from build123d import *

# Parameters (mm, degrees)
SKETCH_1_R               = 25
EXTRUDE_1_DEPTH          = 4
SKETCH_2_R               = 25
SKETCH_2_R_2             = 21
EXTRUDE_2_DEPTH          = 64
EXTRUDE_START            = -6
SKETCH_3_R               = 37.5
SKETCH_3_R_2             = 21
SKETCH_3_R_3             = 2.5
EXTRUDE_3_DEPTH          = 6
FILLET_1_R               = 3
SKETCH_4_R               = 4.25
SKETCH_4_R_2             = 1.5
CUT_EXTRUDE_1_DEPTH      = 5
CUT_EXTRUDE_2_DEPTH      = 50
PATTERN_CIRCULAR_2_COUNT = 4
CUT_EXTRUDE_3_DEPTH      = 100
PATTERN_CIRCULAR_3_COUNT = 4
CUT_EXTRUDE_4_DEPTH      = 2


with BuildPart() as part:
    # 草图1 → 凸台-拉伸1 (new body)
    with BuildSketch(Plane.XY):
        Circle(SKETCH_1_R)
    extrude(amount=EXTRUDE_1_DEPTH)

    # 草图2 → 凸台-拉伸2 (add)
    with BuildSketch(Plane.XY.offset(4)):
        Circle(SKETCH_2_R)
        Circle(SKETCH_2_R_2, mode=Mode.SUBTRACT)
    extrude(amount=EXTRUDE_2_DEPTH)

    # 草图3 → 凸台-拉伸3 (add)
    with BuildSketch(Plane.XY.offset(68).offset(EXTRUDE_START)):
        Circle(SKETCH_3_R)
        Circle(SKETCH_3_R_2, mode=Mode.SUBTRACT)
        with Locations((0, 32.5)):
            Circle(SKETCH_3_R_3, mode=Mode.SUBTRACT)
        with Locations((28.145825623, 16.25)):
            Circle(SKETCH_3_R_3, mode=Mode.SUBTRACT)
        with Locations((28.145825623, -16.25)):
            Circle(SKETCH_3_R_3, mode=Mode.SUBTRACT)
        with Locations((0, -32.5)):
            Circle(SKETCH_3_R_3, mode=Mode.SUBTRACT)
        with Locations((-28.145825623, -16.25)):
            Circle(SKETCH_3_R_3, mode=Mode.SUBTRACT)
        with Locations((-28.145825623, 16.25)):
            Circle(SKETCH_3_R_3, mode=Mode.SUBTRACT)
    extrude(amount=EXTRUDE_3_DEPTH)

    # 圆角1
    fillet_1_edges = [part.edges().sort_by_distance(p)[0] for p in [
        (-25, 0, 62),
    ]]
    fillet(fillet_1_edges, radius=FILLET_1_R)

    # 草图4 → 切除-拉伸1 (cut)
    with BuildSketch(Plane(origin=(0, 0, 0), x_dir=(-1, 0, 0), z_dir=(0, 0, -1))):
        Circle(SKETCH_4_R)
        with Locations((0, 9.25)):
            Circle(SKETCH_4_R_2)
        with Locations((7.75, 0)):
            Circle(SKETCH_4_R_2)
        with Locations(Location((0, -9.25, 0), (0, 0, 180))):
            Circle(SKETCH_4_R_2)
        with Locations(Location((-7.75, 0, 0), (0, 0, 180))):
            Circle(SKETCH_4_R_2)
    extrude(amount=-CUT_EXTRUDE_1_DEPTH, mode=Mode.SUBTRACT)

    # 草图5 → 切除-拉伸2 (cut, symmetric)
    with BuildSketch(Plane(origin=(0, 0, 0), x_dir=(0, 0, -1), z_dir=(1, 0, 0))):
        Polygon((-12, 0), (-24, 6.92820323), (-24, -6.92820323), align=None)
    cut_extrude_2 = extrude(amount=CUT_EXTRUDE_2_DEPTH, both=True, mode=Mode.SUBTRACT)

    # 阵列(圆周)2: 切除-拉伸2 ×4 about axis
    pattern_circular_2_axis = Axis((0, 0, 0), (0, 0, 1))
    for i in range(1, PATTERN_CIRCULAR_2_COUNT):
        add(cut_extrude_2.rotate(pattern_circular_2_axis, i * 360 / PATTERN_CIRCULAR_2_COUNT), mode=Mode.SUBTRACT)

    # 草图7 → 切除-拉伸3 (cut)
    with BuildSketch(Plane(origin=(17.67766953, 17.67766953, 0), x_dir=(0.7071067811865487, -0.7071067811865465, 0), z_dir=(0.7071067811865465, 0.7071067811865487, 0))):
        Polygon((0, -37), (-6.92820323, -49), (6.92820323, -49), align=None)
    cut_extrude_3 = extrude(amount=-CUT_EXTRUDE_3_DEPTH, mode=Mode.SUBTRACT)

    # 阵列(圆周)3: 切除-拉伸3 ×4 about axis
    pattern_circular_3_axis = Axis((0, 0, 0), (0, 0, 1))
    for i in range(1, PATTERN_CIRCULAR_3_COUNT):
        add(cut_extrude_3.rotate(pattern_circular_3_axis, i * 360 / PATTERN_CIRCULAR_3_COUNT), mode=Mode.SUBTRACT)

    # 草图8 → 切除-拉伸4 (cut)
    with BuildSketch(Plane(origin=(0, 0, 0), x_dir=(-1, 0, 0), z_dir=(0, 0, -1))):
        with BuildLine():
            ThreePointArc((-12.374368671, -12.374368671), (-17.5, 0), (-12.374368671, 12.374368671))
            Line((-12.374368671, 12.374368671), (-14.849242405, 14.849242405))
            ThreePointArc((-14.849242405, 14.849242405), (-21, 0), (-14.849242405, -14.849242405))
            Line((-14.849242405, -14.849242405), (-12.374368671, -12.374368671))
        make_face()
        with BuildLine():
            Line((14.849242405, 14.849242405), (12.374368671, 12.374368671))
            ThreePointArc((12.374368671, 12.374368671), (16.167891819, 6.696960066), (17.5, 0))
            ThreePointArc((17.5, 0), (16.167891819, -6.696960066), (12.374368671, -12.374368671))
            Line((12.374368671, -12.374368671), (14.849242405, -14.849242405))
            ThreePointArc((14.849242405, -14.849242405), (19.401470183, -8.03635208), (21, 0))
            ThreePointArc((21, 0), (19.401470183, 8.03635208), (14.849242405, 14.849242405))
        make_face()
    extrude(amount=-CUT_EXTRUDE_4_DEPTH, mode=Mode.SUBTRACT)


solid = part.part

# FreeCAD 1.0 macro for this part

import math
import FreeCAD as App
import Part
import Sketcher

V = App.Vector
Q = App.Units.Quantity


def edges_at(feature, points):
    """Names of the edges that pass closest to the given points."""
    edges = feature.Shape.Edges
    near = lambda p: min(range(len(edges)), key=lambda i: edges[i].distToShape(Part.Vertex(*p))[0])
    return sorted({f"Edge{near(p) + 1}" for p in points})


def add_polygon(sketch, points):
    """Adds a closed chain of lines whose ends are joined by coincident constraints."""
    first, n = sketch.GeometryCount, len(points)
    for a, b in zip(points, points[1:] + points[:1]):
        sketch.addGeometry(Part.LineSegment(App.Vector(*a, 0), App.Vector(*b, 0)), False)
    for i in range(n):
        sketch.addConstraint(Sketcher.Constraint("Coincident", first + i, 2, first + (i + 1) % n, 1))

doc = App.newDocument("Part")
body = doc.addObject("PartDesign::Body", "Body")

# Sketch on XY plane
sketch1 = body.newObject("Sketcher::SketchObject", "Sketch")
sketch1.AttachmentSupport = (doc.getObject("XY_Plane"), [""])
sketch1.MapMode = "FlatFace"
sketch1.addGeometry(Part.Circle(V(0, 0, 0), V(0, 0, 1), 25), False)
sketch1.addConstraint([
    Sketcher.Constraint("Coincident", 0, 3, -1, 1),
    Sketcher.Constraint("Diameter", 0, 50.0),
])
pad1 = body.newObject("PartDesign::Pad", "Pad")
pad1.Profile = sketch1
pad1.Length = 4

# Sketch on XY plane
sketch2 = body.newObject("Sketcher::SketchObject", "Sketch001")
sketch2.AttachmentSupport = (doc.getObject("XY_Plane"), [""])
sketch2.MapMode = "FlatFace"
sketch2.AttachmentOffset = App.Placement(V(0, 0, 4), App.Rotation())
sketch2.addGeometry([
    Part.Circle(V(0, 0, 0), V(0, 0, 1), 25),
    Part.Circle(V(0, 0, 0), V(0, 0, 1), 21),
], False)
sketch2.addConstraint([
    Sketcher.Constraint("Coincident", 0, 3, -1, 1),
    Sketcher.Constraint("Coincident", 1, 3, -1, 1),
    Sketcher.Constraint("Diameter", 0, 50.0),
    Sketcher.Constraint("Diameter", 1, 42.0),
])
pad2 = body.newObject("PartDesign::Pad", "Pad001")
pad2.Profile = sketch2
pad2.Length = 64

# Sketch on XY plane
sketch3 = body.newObject("Sketcher::SketchObject", "Sketch002")
sketch3.AttachmentSupport = (doc.getObject("XY_Plane"), [""])
sketch3.MapMode = "FlatFace"
sketch3.AttachmentOffset = App.Placement(V(0, 0, 62), App.Rotation())
sketch3.addGeometry([
    Part.Circle(V(0, 0, 0), V(0, 0, 1), 37.5),  # 0
    Part.Circle(V(0, -32.5, 0), V(0, 0, 1), 2.5),  # 1
    Part.Circle(V(-28.1, -16.2, 0), V(0, 0, 1), 2.5),  # 2
    Part.Circle(V(28.1, -16.2, 0), V(0, 0, 1), 2.5),  # 3
    Part.Circle(V(-28.1, 16.2, 0), V(0, 0, 1), 2.5),  # 4
    Part.Circle(V(0, 0, 0), V(0, 0, 1), 21),  # 5
    Part.Circle(V(0, 32.5, 0), V(0, 0, 1), 2.5),  # 6
    Part.Circle(V(28.1, 16.2, 0), V(0, 0, 1), 2.5),  # 7
], False)
sketch3.addConstraint([
    Sketcher.Constraint("Coincident", 0, 3, -1, 1),
    Sketcher.Constraint("Coincident", 5, 3, -1, 1),
    Sketcher.Constraint("Equal", 1, 2),
    Sketcher.Constraint("Equal", 2, 3),
    Sketcher.Constraint("Equal", 3, 4),
    Sketcher.Constraint("Equal", 4, 6),
    Sketcher.Constraint("Equal", 6, 7),
    Sketcher.Constraint("Symmetric", 3, 3, 4, 3, -1, 1),
    Sketcher.Constraint("Symmetric", 1, 3, 6, 3, -1, 1),
    Sketcher.Constraint("Symmetric", 2, 3, 7, 3, -1, 1),
    Sketcher.Constraint("Symmetric", 2, 3, 3, 3, -2),
    Sketcher.Constraint("PointOnObject", 1, 3, -2),
    Sketcher.Constraint("Diameter", 0, 75.0),
    Sketcher.Constraint("Diameter", 1, 5.0),
    Sketcher.Constraint("Diameter", 5, 42.0),
    Sketcher.Constraint("DistanceY", 1, 3, -1, 1, 32.5),
    Sketcher.Constraint("DistanceY", 2, 3, 4, 3, 32.5),
    Sketcher.Constraint("DistanceX", 2, 3, 3, 3, 56.291651),
])
pad3 = body.newObject("PartDesign::Pad", "Pad002")
pad3.Profile = sketch3
pad3.Length = 6
doc.recompute()

fillet = body.newObject("PartDesign::Fillet", "Fillet")
fillet.Base = (pad3, edges_at(pad3, [(-25, 0, 62)]))
fillet.Radius = 3

# Sketch on XY plane
sketch4 = body.newObject("Sketcher::SketchObject", "Sketch003")
sketch4.AttachmentSupport = (doc.getObject("XY_Plane"), [""])
sketch4.MapMode = "FlatFace"
sketch4.addGeometry([
    Part.Circle(V(0, 0, 0), V(0, 0, 1), 4.2),  # 0
    Part.Circle(V(0, 9.2, 0), V(0, 0, 1), 1.5),  # 1
    Part.Circle(V(-7.8, 0, 0), V(0, 0, 1), 1.5),  # 2
    Part.Circle(V(0, -9.2, 0), V(0, 0, 1), 1.5),  # 3
    Part.Circle(V(7.8, 0, 0), V(0, 0, 1), 1.5),  # 4
], False)
sketch4.addConstraint([
    Sketcher.Constraint("Coincident", 0, 3, -1, 1),
    Sketcher.Constraint("Equal", 1, 2),
    Sketcher.Constraint("Equal", 2, 3),
    Sketcher.Constraint("Equal", 3, 4),
    Sketcher.Constraint("Symmetric", 1, 3, 3, 3, -1, 1),
    Sketcher.Constraint("Symmetric", 2, 3, 4, 3, -1, 1),
    Sketcher.Constraint("PointOnObject", 1, 3, -2),
    Sketcher.Constraint("PointOnObject", 2, 3, -1),
    Sketcher.Constraint("Diameter", 1, 3.0),
    Sketcher.Constraint("Diameter", 0, 8.5),
    Sketcher.Constraint("DistanceY", 3, 3, 1, 3, 18.5),
    Sketcher.Constraint("DistanceX", 2, 3, 4, 3, 15.5),
])
pocket1 = body.newObject("PartDesign::Pocket", "Pocket")
pocket1.Profile = sketch4
pocket1.Length = 5
pocket1.Reversed = True

# Sketch on YZ plane
sketch5 = body.newObject("Sketcher::SketchObject", "Sketch004")
sketch5.AttachmentSupport = (doc.getObject("YZ_Plane"), [""])
sketch5.MapMode = "FlatFace"
add_polygon(sketch5, [(0, 12), (7, 24), (-7, 24)])  # lines 0-2
sketch5.addConstraint([
    Sketcher.Constraint("Horizontal", 1),
    Sketcher.Constraint("PointOnObject", 2, 2, -2),
    Sketcher.Constraint("Equal", 0, 2),
    Sketcher.Constraint("Angle", 0, Q("60 deg")),
    Sketcher.Constraint("DistanceY", -1, 1, 0, 2, 24.0),
    Sketcher.Constraint("DistanceY", -1, 1, 2, 2, 12.0),
])
pocket2 = body.newObject("PartDesign::Pocket", "Pocket001")
pocket2.Profile = sketch5
pocket2.Length = 100
pocket2.Midplane = True
doc.recompute()

polarpattern = body.newObject("PartDesign::PolarPattern", "PolarPattern")
polarpattern.Originals = [pocket2]
polarpattern.Axis = (doc.getObject("Z_Axis"), [""])
polarpattern.Angle = 360
polarpattern.Occurrences = 4
body.Tip = polarpattern

# Sketch on an angled plane
sketch6 = body.newObject("Sketcher::SketchObject", "Sketch005")
sketch6.Placement = App.Placement(V(17.67767, 17.67767, 0), App.Rotation(V(0.707106781, -0.707106781, 0), V(0, 0, -0.999999999), V(0.707106781, 0.707106781, 0), "ZXY"))
add_polygon(sketch6, [(0, -37), (-7, -49), (7, -49)])  # lines 0-2
sketch6.addConstraint([
    Sketcher.Constraint("Horizontal", 1),
    Sketcher.Constraint("PointOnObject", 2, 2, -2),
    Sketcher.Constraint("Equal", 0, 2),
    Sketcher.Constraint("Angle", 0, Q("-120 deg")),
    Sketcher.Constraint("DistanceY", 0, 2, -1, 1, 49.0),
    Sketcher.Constraint("DistanceY", 2, 2, -1, 1, 37.0),
])
pocket3 = body.newObject("PartDesign::Pocket", "Pocket002")
pocket3.Profile = sketch6
pocket3.Length = 100
doc.recompute()

polarpattern2 = body.newObject("PartDesign::PolarPattern", "PolarPattern001")
polarpattern2.Originals = [pocket3]
polarpattern2.Axis = (doc.getObject("Z_Axis"), [""])
polarpattern2.Angle = 360
polarpattern2.Occurrences = 4
body.Tip = polarpattern2

# Sketch on XY plane
sketch7 = body.newObject("Sketcher::SketchObject", "Sketch006")
sketch7.AttachmentSupport = (doc.getObject("XY_Plane"), [""])
sketch7.MapMode = "FlatFace"
sketch7.addGeometry([
    Part.ArcOfCircle(Part.Circle(V(0, 0, 0), V(0, 0, 1), 17.5), math.radians(-45), math.radians(45)),  # 0
    Part.LineSegment(V(12.4, 12.4, 0), V(14.8, 14.8, 0)),  # 1
    Part.ArcOfCircle(Part.Circle(V(0, 0, 0), V(0, 0, 1), 21), math.radians(-45), math.radians(45)),  # 2
    Part.LineSegment(V(14.8, -14.8, 0), V(12.4, -12.4, 0)),  # 3
    Part.LineSegment(V(-14.8, 14.8, 0), V(-12.4, 12.4, 0)),  # 4
    Part.ArcOfCircle(Part.Circle(V(0, 0, 0), V(0, 0, 1), 17.5), math.radians(135), math.radians(180)),  # 5
    Part.ArcOfCircle(Part.Circle(V(0, 0, 0), V(0, 0, 1), 17.5), math.radians(-180), math.radians(-135)),  # 6
    Part.LineSegment(V(-12.4, -12.4, 0), V(-14.8, -14.8, 0)),  # 7
    Part.ArcOfCircle(Part.Circle(V(0, 0, 0), V(0, 0, 1), 21), math.radians(180), math.radians(225)),  # 8
    Part.ArcOfCircle(Part.Circle(V(0, 0, 0), V(0, 0, 1), 21), math.radians(135), math.radians(180)),  # 9
], False)
sketch7.addConstraint([
    Sketcher.Constraint("Coincident", 0, 2, 1, 1),
    Sketcher.Constraint("Coincident", 1, 2, 2, 2),
    Sketcher.Constraint("Coincident", 2, 1, 3, 1),
    Sketcher.Constraint("Coincident", 3, 2, 0, 1),
    Sketcher.Constraint("Coincident", 4, 2, 5, 1),
    Sketcher.Constraint("Tangent", 5, 2, 6, 1),
    Sketcher.Constraint("Coincident", 6, 2, 7, 1),
    Sketcher.Constraint("Coincident", 7, 2, 8, 2),
    Sketcher.Constraint("Tangent", 8, 1, 9, 2),
    Sketcher.Constraint("Coincident", 9, 1, 4, 1),
    Sketcher.Constraint("Coincident", 0, 3, -1, 1),
    Sketcher.Constraint("Coincident", 2, 3, -1, 1),
    Sketcher.Constraint("Coincident", 5, 3, -1, 1),
    Sketcher.Constraint("Coincident", 8, 3, -1, 1),
    Sketcher.Constraint("Equal", 0, 5),
    Sketcher.Constraint("Equal", 5, 6),
    Sketcher.Constraint("Equal", 2, 8),
    Sketcher.Constraint("Equal", 8, 9),
    Sketcher.Constraint("PointOnObject", 5, 2, -1),
    Sketcher.Constraint("PointOnObject", 8, 1, -1),
    Sketcher.Constraint("Perpendicular", 1, 3),
    Sketcher.Constraint("Parallel", 3, 4),
    Sketcher.Constraint("Perpendicular", 4, 7),
    Sketcher.Constraint("Horizontal", 0, 2, 4, 2),
    Sketcher.Constraint("Horizontal", 3, 2, 6, 2),
    Sketcher.Constraint("Horizontal", 2, 1, 7, 2),
    Sketcher.Constraint("Vertical", 1, 2, 2, 1),
    Sketcher.Constraint("Radius", 2, 21.0),
    Sketcher.Constraint("Radius", 0, 17.5),
    Sketcher.Constraint("DistanceX", -1, 1, 0, 2, 12.374369),
])
pocket4 = body.newObject("PartDesign::Pocket", "Pocket003")
pocket4.Profile = sketch7
pocket4.Length = 2
pocket4.Reversed = True

doc.recompute()
